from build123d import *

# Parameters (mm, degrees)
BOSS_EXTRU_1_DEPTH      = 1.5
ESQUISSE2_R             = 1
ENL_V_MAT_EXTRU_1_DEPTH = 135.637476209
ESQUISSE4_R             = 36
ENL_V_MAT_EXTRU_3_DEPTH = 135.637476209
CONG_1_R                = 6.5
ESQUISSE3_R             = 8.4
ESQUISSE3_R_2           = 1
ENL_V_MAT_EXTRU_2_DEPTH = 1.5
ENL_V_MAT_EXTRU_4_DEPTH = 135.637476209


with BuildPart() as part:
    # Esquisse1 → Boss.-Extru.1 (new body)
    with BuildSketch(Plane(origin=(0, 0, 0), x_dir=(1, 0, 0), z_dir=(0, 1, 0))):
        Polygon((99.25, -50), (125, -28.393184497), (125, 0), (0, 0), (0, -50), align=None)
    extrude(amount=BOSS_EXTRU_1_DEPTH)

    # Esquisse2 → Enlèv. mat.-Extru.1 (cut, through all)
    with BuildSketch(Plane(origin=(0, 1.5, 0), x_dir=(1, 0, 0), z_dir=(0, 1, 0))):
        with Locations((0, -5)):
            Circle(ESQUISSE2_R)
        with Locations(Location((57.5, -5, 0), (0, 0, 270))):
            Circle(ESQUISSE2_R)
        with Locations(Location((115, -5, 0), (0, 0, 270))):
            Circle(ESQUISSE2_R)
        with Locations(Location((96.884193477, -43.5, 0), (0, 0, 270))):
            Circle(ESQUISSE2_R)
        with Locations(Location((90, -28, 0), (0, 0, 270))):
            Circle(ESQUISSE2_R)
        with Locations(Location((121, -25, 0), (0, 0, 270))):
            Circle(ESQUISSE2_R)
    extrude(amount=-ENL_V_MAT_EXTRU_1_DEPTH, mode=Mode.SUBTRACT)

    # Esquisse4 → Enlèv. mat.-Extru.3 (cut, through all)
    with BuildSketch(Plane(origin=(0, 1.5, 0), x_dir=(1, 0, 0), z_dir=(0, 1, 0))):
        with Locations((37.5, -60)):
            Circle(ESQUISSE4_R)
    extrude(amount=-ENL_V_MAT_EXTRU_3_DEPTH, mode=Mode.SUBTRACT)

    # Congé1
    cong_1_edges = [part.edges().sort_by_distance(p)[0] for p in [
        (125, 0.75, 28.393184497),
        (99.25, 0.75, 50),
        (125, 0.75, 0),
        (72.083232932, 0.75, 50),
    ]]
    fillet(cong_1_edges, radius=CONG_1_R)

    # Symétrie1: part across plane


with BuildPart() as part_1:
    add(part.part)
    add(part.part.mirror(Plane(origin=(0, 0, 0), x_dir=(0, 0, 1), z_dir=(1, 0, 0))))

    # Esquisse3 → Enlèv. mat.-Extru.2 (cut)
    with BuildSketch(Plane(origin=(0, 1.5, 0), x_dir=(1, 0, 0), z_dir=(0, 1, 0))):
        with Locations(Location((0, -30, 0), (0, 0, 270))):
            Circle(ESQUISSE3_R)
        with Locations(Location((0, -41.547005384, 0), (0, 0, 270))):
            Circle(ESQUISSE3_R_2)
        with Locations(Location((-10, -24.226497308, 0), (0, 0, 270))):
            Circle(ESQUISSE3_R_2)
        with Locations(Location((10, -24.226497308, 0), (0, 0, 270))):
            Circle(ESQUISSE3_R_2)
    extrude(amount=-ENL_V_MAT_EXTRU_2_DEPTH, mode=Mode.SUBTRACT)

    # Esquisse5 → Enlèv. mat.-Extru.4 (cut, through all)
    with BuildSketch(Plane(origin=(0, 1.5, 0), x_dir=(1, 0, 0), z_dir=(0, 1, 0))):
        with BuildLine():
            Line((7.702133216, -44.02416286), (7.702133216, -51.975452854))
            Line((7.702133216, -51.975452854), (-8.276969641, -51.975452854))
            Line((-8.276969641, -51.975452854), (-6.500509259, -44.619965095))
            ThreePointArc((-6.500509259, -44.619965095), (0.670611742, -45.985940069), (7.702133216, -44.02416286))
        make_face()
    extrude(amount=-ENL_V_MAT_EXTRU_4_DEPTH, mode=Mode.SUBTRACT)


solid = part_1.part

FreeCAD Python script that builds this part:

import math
import FreeCAD as App
import Part
import Sketcher

V = App.Vector
Q = App.Units.Quantity


def edges_at(feature, points):
    """Names of the edges that pass closest to the given points."""
    edges = feature.Shape.Edges
    near = lambda p: min(range(len(edges)), key=lambda i: edges[i].distToShape(Part.Vertex(*p))[0])
    return sorted({f"Edge{near(p) + 1}" for p in points})


def add_polygon(sketch, points):
    """Adds a closed chain of lines whose ends are joined by coincident constraints."""
    first, n = sketch.GeometryCount, len(points)
    for a, b in zip(points, points[1:] + points[:1]):
        sketch.addGeometry(Part.LineSegment(App.Vector(*a, 0), App.Vector(*b, 0)), False)
    for i in range(n):
        sketch.addConstraint(Sketcher.Constraint("Coincident", first + i, 2, first + (i + 1) % n, 1))

doc = App.newDocument("Part")
params = doc.addObject("Spreadsheet::Sheet", "Params")
for row, (alias, value) in enumerate([
    ("sketch1_width", "125 mm"),
    ("sketch1_height", "50 mm"),
    ("sketch1_width2", "99.25 mm"),
    ("pad1_length", "1.5 mm"),
    ("sketch2_diameter", "2 mm"),
    ("sketch3_diameter", "72 mm"),
    ("fillet_radius", "6.5 mm"),
    ("sketch4_diameter", "2 mm"),
    ("sketch4_diameter2", "16.8 mm"),
    ("pocket3_length", "1.5 mm"),
    ("sketch5_radius", "16 mm"),
], start=1):
    params.set(f"A{row}", alias)
    params.set(f"B{row}", "=" + value)
    params.setAlias(f"B{row}", alias)

body = doc.addObject("PartDesign::Body", "Body")

# Sketch on XZ plane
sketch1 = body.newObject("Sketcher::SketchObject", "Sketch")
sketch1.AttachmentSupport = (doc.getObject("XZ_Plane"), [""])
sketch1.MapMode = "FlatFace"
add_polygon(sketch1, [(99.25, 50), (125, 28.393184), (125, 0), (0, 0), (0, 50)])  # lines 0-4
sketch1.addConstraint([
    Sketcher.Constraint("Vertical", 1),
    Sketcher.Constraint("Horizontal", 2),
    Sketcher.Constraint("Vertical", 3),
    Sketcher.Constraint("Horizontal", 4),
    Sketcher.Constraint("Coincident", 2, 2, -1, 1),
    Sketcher.Constraint("DistanceX", 2, 2, 2, 1, 125.0),
    Sketcher.Constraint("DistanceY", 3, 1, 3, 2, 50.0),
    Sketcher.Constraint("Angle", 0, Q("-40 deg")),
    Sketcher.Constraint("DistanceX", 4, 1, 4, 2, 99.25),
])
sketch1.setExpression("Constraints[10]", "Params.sketch1_width")
sketch1.setExpression("Constraints[11]", "Params.sketch1_height")
sketch1.setExpression("Constraints[13]", "Params.sketch1_width2")
pad1 = body.newObject("PartDesign::Pad", "Pad")
pad1.Profile = sketch1
pad1.setExpression("Length", "Params.pad1_length")
pad1.Reversed = True

# Sketch on XZ plane
sketch2 = body.newObject("Sketcher::SketchObject", "Sketch001")
sketch2.AttachmentSupport = (doc.getObject("XZ_Plane"), [""])
sketch2.MapMode = "FlatFace"
sketch2.AttachmentOffset = App.Placement(V(0, 0, -1.5), App.Rotation())
sketch2.addGeometry([
    Part.Circle(V(0, 5, 0), V(0, 0, 1), 1),  # 0
    Part.Circle(V(57.5, 5, 0), V(0, 0, 1), 1),  # 1
    Part.Circle(V(115, 5, 0), V(0, 0, 1), 1),  # 2
    Part.Circle(V(96.884193, 43.5, 0), V(0, 0, 1), 1),  # 3
    Part.Circle(V(90, 28, 0), V(0, 0, 1), 1),  # 4
    Part.Circle(V(121, 25, 0), V(0, 0, 1), 1),  # 5
], False)
sketch2.addConstraint([
    Sketcher.Constraint("Equal", 0, 1),
    Sketcher.Constraint("Equal", 1, 2),
    Sketcher.Constraint("Equal", 2, 3),
    Sketcher.Constraint("Equal", 3, 4),
    Sketcher.Constraint("Equal", 4, 5),
    Sketcher.Constraint("PointOnObject", 0, 3, -2),
    Sketcher.Constraint("Horizontal", 0, 3, 1, 3),
    Sketcher.Constraint("Horizontal", 1, 3, 2, 3),
    Sketcher.Constraint("Diameter", 0, 2.0),
    Sketcher.Constraint("DistanceY", -1, 1, 0, 3, 5.0),
    Sketcher.Constraint("DistanceX", -1, 1, 2, 3, 115.0),
    Sketcher.Constraint("DistanceX", -1, 1, 4, 3, 90.0),
    Sketcher.Constraint("DistanceY", -1, 1, 4, 3, 28.0),
    Sketcher.Constraint("DistanceX", -1, 1, 5, 3, 121.0),
    Sketcher.Constraint("DistanceY", -1, 1, 5, 3, 25.0),
    Sketcher.Constraint("DistanceX", -1, 1, 1, 3, 57.5),
    Sketcher.Constraint("DistanceY", -1, 1, 3, 3, 43.5),
    Sketcher.Constraint("DistanceX", -1, 1, 3, 3, 96.884193),
])
sketch2.setExpression("Constraints[8]", "Params.sketch2_diameter")
pocket1 = body.newObject("PartDesign::Pocket", "Pocket")
pocket1.Profile = sketch2
pocket1.Type = "ThroughAll"
pocket1.Reversed = True

# Sketch on XZ plane
sketch3 = body.newObject("Sketcher::SketchObject", "Sketch002")
sketch3.AttachmentSupport = (doc.getObject("XZ_Plane"), [""])
sketch3.MapMode = "FlatFace"
sketch3.AttachmentOffset = App.Placement(V(0, 0, -1.5), App.Rotation())
sketch3.addGeometry(Part.Circle(V(37.5, 60, 0), V(0, 0, 1), 36), False)
sketch3.addConstraint([
    Sketcher.Constraint("Diameter", 0, 72.0),
    Sketcher.Constraint("DistanceY", -1, 1, 0, 3, 60.0),
    Sketcher.Constraint("DistanceX", -1, 1, 0, 3, 37.5),
])
sketch3.setExpression("Constraints[0]", "Params.sketch3_diameter")
pocket2 = body.newObject("PartDesign::Pocket", "Pocket001")
pocket2.Profile = sketch3
pocket2.Type = "ThroughAll"
pocket2.Reversed = True
doc.recompute()

fillet = body.newObject("PartDesign::Fillet", "Fillet")
fillet.Base = (pocket2, edges_at(pocket2, [
    (125, 0.75, 28.393),
    (99.25, 0.75, 50),
    (125, 0.75, 0),
    (72.083, 0.75, 50),
]))
fillet.setExpression("Radius", "Params.fillet_radius")
body2 = doc.addObject("PartDesign::Body", "Body001")
doc.recompute()

body2.BaseFeature = body
doc.recompute()

mirroring = doc.addObject("Part::Mirroring", "Mirroring")
mirroring.Source = body
mirroring.Base = V(0, 0, 0)
mirroring.Normal = V(1, 0, 0)
body3 = doc.addObject("PartDesign::Body", "Body002")
body3.BaseFeature = mirroring
boolean = body2.newObject("PartDesign::Boolean", "Boolean")
boolean.Type = "Fuse"
boolean.addObjects([body3])
doc.recompute()

# Sketch on XZ plane
sketch4 = body2.newObject("Sketcher::SketchObject", "Sketch003")
sketch4.AttachmentSupport = (doc.getObject("XZ_Plane001"), [""])
sketch4.MapMode = "FlatFace"
sketch4.AttachmentOffset = App.Placement(V(0, 0, -1.5), App.Rotation())
sketch4.addGeometry([
    Part.Circle(V(0, 30, 0), V(0, 0, 1), 8.4),
    Part.Circle(V(0, 41.547005, 0), V(0, 0, 1), 1),
    Part.Circle(V(-10, 24.226497, 0), V(0, 0, 1), 1),
    Part.Circle(V(10, 24.226497, 0), V(0, 0, 1), 1),
], False)
sketch4.addConstraint([
    Sketcher.Constraint("Equal", 1, 2),
    Sketcher.Constraint("Equal", 2, 3),
    Sketcher.Constraint("Symmetric", 2, 3, 3, 3, -2),
    Sketcher.Constraint("PointOnObject", 0, 3, -2),
    Sketcher.Constraint("PointOnObject", 1, 3, -2),
    Sketcher.Constraint("Diameter", 1, 2.0),
    Sketcher.Constraint("Diameter", 0, 16.8),
    Sketcher.Constraint("DistanceY", -1, 1, 0, 3, 30.0),
    Sketcher.Constraint("DistanceX", 2, 3, -1, 1, 10.0),
    Sketcher.Constraint("DistanceY", 2, 3, 1, 3, 17.320508),
    Sketcher.Constraint("DistanceY", -1, 1, 1, 3, 41.547005),
])
sketch4.setExpression("Constraints[5]", "Params.sketch4_diameter")
sketch4.setExpression("Constraints[6]", "Params.sketch4_diameter2")
pocket3 = body2.newObject("PartDesign::Pocket", "Pocket002")
pocket3.Profile = sketch4
pocket3.setExpression("Length", "Params.pocket3_length")
pocket3.Reversed = True

# Sketch on XZ plane
sketch5 = body2.newObject("Sketcher::SketchObject", "Sketch004")
sketch5.AttachmentSupport = (doc.getObject("XZ_Plane001"), [""])
sketch5.MapMode = "FlatFace"
sketch5.AttachmentOffset = App.Placement(V(0, 0, -1.5), App.Rotation())
sketch5.addGeometry([
    Part.LineSegment(V(7.702133, 51.975453, 0), V(7.702133, 44.024163, 0)),
    Part.ArcOfCircle(Part.Circle(V(0, 30, 0), V(0, 0, 1), 16), math.radians(61.224212), math.radians(113.971478)),
    Part.LineSegment(V(-6.500509, 44.619965, 0), V(-8.27697, 51.975453, 0)),
    Part.LineSegment(V(-8.27697, 51.975453, 0), V(7.702133, 51.975453, 0)),
], False)
sketch5.addConstraint([
    Sketcher.Constraint("Coincident", 0, 2, 1, 1),
    Sketcher.Constraint("Coincident", 1, 2, 2, 1),
    Sketcher.Constraint("Coincident", 2, 2, 3, 1),
    Sketcher.Constraint("Coincident", 3, 2, 0, 1),
    Sketcher.Constraint("Vertical", 0),
    Sketcher.Constraint("Horizontal", 3),
    Sketcher.Constraint("PointOnObject", 1, 3, -2),
    Sketcher.Constraint("Radius", 1, 16.0),
    Sketcher.Constraint("DistanceY", -1, 1, 1, 3, 30.0),
    Sketcher.Constraint("DistanceY", 0, 2, 0, 1, 7.95129),
    Sketcher.Constraint("Distance", 2, 7.566968),
    Sketcher.Constraint("DistanceX", 3, 1, 3, 2, 15.979103),
    Sketcher.Constraint("DistanceX", 1, 2, -1, 1, 6.500509),
])
sketch5.setExpression("Constraints[7]", "Params.sketch5_radius")
pocket4 = body2.newObject("PartDesign::Pocket", "Pocket003")
pocket4.Profile = sketch5
pocket4.Type = "ThroughAll"
pocket4.Reversed = True
mirroring.Visibility = False

doc.recompute()
